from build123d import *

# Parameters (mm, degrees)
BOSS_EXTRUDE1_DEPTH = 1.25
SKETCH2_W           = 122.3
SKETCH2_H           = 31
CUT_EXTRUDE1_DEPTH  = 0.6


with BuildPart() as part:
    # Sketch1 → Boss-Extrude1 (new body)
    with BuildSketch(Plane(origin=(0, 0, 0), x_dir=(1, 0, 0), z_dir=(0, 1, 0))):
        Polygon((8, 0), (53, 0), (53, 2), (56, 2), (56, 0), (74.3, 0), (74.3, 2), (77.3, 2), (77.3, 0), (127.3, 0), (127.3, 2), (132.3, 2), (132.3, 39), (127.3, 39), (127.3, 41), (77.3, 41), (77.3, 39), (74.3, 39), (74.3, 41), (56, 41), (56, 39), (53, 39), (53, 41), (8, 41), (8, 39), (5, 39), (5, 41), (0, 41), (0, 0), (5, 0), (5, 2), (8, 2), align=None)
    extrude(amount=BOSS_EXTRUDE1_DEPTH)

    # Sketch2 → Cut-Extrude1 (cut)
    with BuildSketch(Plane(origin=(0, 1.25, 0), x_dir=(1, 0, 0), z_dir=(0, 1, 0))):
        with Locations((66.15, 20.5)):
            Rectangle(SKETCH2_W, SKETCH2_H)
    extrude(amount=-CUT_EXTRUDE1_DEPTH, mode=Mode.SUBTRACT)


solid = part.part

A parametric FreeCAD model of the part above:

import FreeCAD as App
import Part
import Sketcher


def add_polygon(sketch, points):
    """Adds a closed chain of lines whose ends are joined by coincident constraints."""
    first, n = sketch.GeometryCount, len(points)
    for a, b in zip(points, points[1:] + points[:1]):
        sketch.addGeometry(Part.LineSegment(App.Vector(*a, 0), App.Vector(*b, 0)), False)
    for i in range(n):
        sketch.addConstraint(Sketcher.Constraint("Coincident", first + i, 2, first + (i + 1) % n, 1))

doc = App.newDocument("Part")
params = doc.addObject("Spreadsheet::Sheet", "Params")
for row, (alias, value) in enumerate([
    ("sketch1_width", "45 mm"),
    ("sketch1_width2", "3 mm"),
    ("sketch1_width3", "50 mm"),
    ("sketch1_width4", "5 mm"),
    ("sketch1_height", "2 mm"),
    ("pad1_length", "1.25 mm"),
    ("sketch2_height", "31 mm"),
    ("sketch2_width", "122.3 mm"),
    ("pocket1_length", "0.6 mm"),
], start=1):
    params.set(f"A{row}", alias)
    params.set(f"B{row}", "=" + value)
    params.setAlias(f"B{row}", alias)

body = doc.addObject("PartDesign::Body", "Body")

# Sketch on XZ plane
sketch1 = body.newObject("Sketcher::SketchObject", "Sketch")
sketch1.AttachmentSupport = (doc.getObject("XZ_Plane"), [""])
sketch1.MapMode = "FlatFace"
add_polygon(sketch1, [(8, 0), (53, 0), (53, -2), (56, -2), (56, 0), (74.3, 0), (74.3, -2), (77.3, -2), (77.3, 0), (127.3, 0), (127.3, -2), (132.3, -2), (132.3, -39), (127.3, -39), (127.3, -41), (77.3, -41), (77.3, -39), (74.3, -39), (74.3, -41), (56, -41), (56, -39), (53, -39), (53, -41), (8, -41), (8, -39), (5, -39), (5, -41), (0, -41), (0, 0), (5, 0), (5, -2), (8, -2)])  # lines 0-31
sketch1.addConstraint(Sketcher.Constraint("Horizontal", 0))
sketch1.addConstraint(Sketcher.Constraint("Vertical", 1))
sketch1.addConstraint(Sketcher.Constraint("Horizontal", 2))
sketch1.addConstraint(Sketcher.Constraint("Vertical", 3))
sketch1.addConstraint(Sketcher.Constraint("Horizontal", 4))
sketch1.addConstraint(Sketcher.Constraint("Vertical", 5))
sketch1.addConstraint(Sketcher.Constraint("Horizontal", 6))
sketch1.addConstraint(Sketcher.Constraint("Vertical", 7))
sketch1.addConstraint(Sketcher.Constraint("Horizontal", 8))
sketch1.addConstraint(Sketcher.Constraint("Vertical", 9))
sketch1.addConstraint(Sketcher.Constraint("Horizontal", 10))
sketch1.addConstraint(Sketcher.Constraint("Vertical", 11))
sketch1.addConstraint(Sketcher.Constraint("Horizontal", 12))
sketch1.addConstraint(Sketcher.Constraint("Vertical", 13))
sketch1.addConstraint(Sketcher.Constraint("Horizontal", 14))
sketch1.addConstraint(Sketcher.Constraint("Vertical", 15))
sketch1.addConstraint(Sketcher.Constraint("Horizontal", 16))
sketch1.addConstraint(Sketcher.Constraint("Vertical", 17))
sketch1.addConstraint(Sketcher.Constraint("Horizontal", 18))
sketch1.addConstraint(Sketcher.Constraint("Vertical", 19))
sketch1.addConstraint(Sketcher.Constraint("Horizontal", 20))
sketch1.addConstraint(Sketcher.Constraint("Vertical", 21))
sketch1.addConstraint(Sketcher.Constraint("Horizontal", 22))
sketch1.addConstraint(Sketcher.Constraint("Vertical", 23))
sketch1.addConstraint(Sketcher.Constraint("Horizontal", 24))
sketch1.addConstraint(Sketcher.Constraint("Vertical", 25))
sketch1.addConstraint(Sketcher.Constraint("Horizontal", 26))
sketch1.addConstraint(Sketcher.Constraint("Vertical", 27))
sketch1.addConstraint(Sketcher.Constraint("Horizontal", 28))
sketch1.addConstraint(Sketcher.Constraint("Vertical", 29))
sketch1.addConstraint(Sketcher.Constraint("Horizontal", 30))
sketch1.addConstraint(Sketcher.Constraint("Vertical", 31))
sketch1.addConstraint(Sketcher.Constraint("Coincident", 27, 2, -1, 1))
sketch1.addConstraint(Sketcher.Constraint("PointOnObject", 0, 2, -1))
sketch1.addConstraint(Sketcher.Constraint("PointOnObject", 3, 2, -1))
sketch1.addConstraint(Sketcher.Constraint("PointOnObject", 7, 2, -1))
sketch1.addConstraint(Sketcher.Constraint("Horizontal", 2, 2, 5, 2))
sketch1.addConstraint(Sketcher.Constraint("Horizontal", 6, 2, 9, 2))
sketch1.addConstraint(Sketcher.Constraint("Horizontal", 12, 2, 15, 2))
sketch1.addConstraint(Sketcher.Constraint("Horizontal", 14, 2, 17, 2))
sketch1.addConstraint(Sketcher.Constraint("Horizontal", 16, 2, 19, 2))
sketch1.addConstraint(Sketcher.Constraint("Horizontal", 18, 2, 21, 2))
sketch1.addConstraint(Sketcher.Constraint("Horizontal", 20, 2, 23, 2))
sketch1.addConstraint(Sketcher.Constraint("Horizontal", 22, 2, 25, 2))
sketch1.addConstraint(Sketcher.Constraint("Horizontal", 10, 2, 29, 2))
sketch1.addConstraint(Sketcher.Constraint("Vertical", 9, 2, 12, 2))
sketch1.addConstraint(Sketcher.Constraint("Vertical", 7, 2, 14, 2))
sketch1.addConstraint(Sketcher.Constraint("Vertical", 5, 2, 16, 2))
sketch1.addConstraint(Sketcher.Constraint("Vertical", 3, 2, 18, 2))
sketch1.addConstraint(Sketcher.Constraint("Vertical", 1, 2, 20, 2))
sketch1.addConstraint(Sketcher.Constraint("Vertical", 25, 2, 28, 2))
sketch1.addConstraint(Sketcher.Constraint("Vertical", 23, 2, 30, 2))
sketch1.addConstraint(Sketcher.Constraint("Equal", 2, 6))
sketch1.addConstraint(Sketcher.Constraint("Equal", 20, 24))
sketch1.addConstraint(Sketcher.Constraint("Equal", 12, 26))
sketch1.addConstraint(Sketcher.Constraint("Equal", 9, 13))
sketch1.addConstraint(Sketcher.Constraint("DistanceX", 0, 1, 0, 2, 45.0))
sketch1.addConstraint(Sketcher.Constraint("DistanceX", 2, 1, 2, 2, 3.0))
sketch1.addConstraint(Sketcher.Constraint("DistanceX", 8, 1, 8, 2, 50.0))
sketch1.addConstraint(Sketcher.Constraint("DistanceX", 10, 1, 10, 2, 5.0))
sketch1.addConstraint(Sketcher.Constraint("DistanceY", 1, 2, 1, 1, 2.0))
sketch1.addConstraint(Sketcher.Constraint("DistanceY", 11, 2, 11, 1, 37.0))
sketch1.addConstraint(Sketcher.Constraint("DistanceX", 4, 1, 4, 2, 18.3))
sketch1.setExpression("Constraints[88]", "Params.sketch1_width")
sketch1.setExpression("Constraints[89]", "Params.sketch1_width2")
sketch1.setExpression("Constraints[90]", "Params.sketch1_width3")
sketch1.setExpression("Constraints[91]", "Params.sketch1_width4")
sketch1.setExpression("Constraints[92]", "Params.sketch1_height")
pad1 = body.newObject("PartDesign::Pad", "Pad")
pad1.Profile = sketch1
pad1.setExpression("Length", "Params.pad1_length")
pad1.Reversed = True

# Sketch on XZ plane
sketch2 = body.newObject("Sketcher::SketchObject", "Sketch001")
sketch2.AttachmentSupport = (doc.getObject("XZ_Plane"), [""])
sketch2.MapMode = "FlatFace"
sketch2.AttachmentOffset = App.Placement(App.Vector(0, 0, -1.25), App.Rotation())
add_polygon(sketch2, [(5, -36), (5, -5), (127.3, -5), (127.3, -36)])  # lines 0-3
sketch2.addConstraint(Sketcher.Constraint("Vertical", 0))
sketch2.addConstraint(Sketcher.Constraint("Horizontal", 1))
sketch2.addConstraint(Sketcher.Constraint("Vertical", 2))
sketch2.addConstraint(Sketcher.Constraint("Horizontal", 3))
sketch2.addConstraint(Sketcher.Constraint("DistanceY", 0, 1, 0, 2, 31.0))
sketch2.addConstraint(Sketcher.Constraint("DistanceX", 1, 1, 1, 2, 122.3))
sketch2.addConstraint(Sketcher.Constraint("DistanceX", -1, 1, 0, 2, 5.0))
sketch2.addConstraint(Sketcher.Constraint("DistanceY", 0, 2, -1, 1, 5.0))
sketch2.setExpression("Constraints[8]", "Params.sketch2_height")
sketch2.setExpression("Constraints[9]", "Params.sketch2_width")
pocket1 = body.newObject("PartDesign::Pocket", "Pocket")
pocket1.Profile = sketch2
pocket1.setExpression("Length", "Params.pocket1_length")
pocket1.Reversed = True

doc.recompute()
